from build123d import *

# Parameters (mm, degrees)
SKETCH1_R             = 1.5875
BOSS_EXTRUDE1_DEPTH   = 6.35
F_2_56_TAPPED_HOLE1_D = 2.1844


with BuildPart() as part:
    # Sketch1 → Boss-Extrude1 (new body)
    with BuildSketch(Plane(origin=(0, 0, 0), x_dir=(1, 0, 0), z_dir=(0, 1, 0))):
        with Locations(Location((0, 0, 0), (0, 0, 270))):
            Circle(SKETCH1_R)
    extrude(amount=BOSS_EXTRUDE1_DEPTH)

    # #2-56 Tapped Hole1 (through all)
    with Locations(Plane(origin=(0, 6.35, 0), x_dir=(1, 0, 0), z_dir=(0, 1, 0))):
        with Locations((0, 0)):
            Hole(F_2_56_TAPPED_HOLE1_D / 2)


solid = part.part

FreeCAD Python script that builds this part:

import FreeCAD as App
import Part
import Sketcher
from FreeCAD import Vector
Q = App.Units.Quantity

doc = App.newDocument("Part")
body = doc.addObject("PartDesign::Body", "Body")

sketch1 = body.newObject("Sketcher::SketchObject", "Sketch")
sketch1.AttachmentSupport = (doc.getObject("XZ_Plane"), [""])
sketch1.MapMode = "FlatFace"
sketch1.addGeometry(Part.Circle(Vector(0, 0, 0), Vector(0, 0, 1), 1.6), False)
sketch1.addConstraint([
    Sketcher.Constraint("Coincident", 0, 3, -1, 1),
    Sketcher.Constraint("Diameter", 0, Q("0.125 in")),
])
pad1 = body.newObject("PartDesign::Pad", "Pad")
pad1.Profile = sketch1
pad1.Length = Q("0.25 in")
pad1.Reversed = True

sketch2 = body.newObject("Sketcher::SketchObject", "Sketch001")
sketch2.AttachmentSupport = (doc.getObject("XZ_Plane"), [""])
sketch2.MapMode = "FlatFace"
sketch2.AttachmentOffset = App.Placement(Vector(0, 0, -0.25 * 25.4), App.Rotation())
sketch2.addGeometry(Part.Circle(Vector(0, 0, 0), Vector(0, 0, 1), 1.1), False)
sketch2.addConstraint([
    Sketcher.Constraint("Coincident", 0, 3, -1, 1),
    Sketcher.Constraint("Diameter", 0, Q("0.086 in")),
])
doc.recompute()
hole = body.newObject("PartDesign::Hole", "Hole")
hole.Profile = sketch2
hole.ThreadType = "None"
hole.Diameter = Q("0.086 in")
hole.DepthType = "ThroughAll"
hole.Reversed = True

doc.recompute()
